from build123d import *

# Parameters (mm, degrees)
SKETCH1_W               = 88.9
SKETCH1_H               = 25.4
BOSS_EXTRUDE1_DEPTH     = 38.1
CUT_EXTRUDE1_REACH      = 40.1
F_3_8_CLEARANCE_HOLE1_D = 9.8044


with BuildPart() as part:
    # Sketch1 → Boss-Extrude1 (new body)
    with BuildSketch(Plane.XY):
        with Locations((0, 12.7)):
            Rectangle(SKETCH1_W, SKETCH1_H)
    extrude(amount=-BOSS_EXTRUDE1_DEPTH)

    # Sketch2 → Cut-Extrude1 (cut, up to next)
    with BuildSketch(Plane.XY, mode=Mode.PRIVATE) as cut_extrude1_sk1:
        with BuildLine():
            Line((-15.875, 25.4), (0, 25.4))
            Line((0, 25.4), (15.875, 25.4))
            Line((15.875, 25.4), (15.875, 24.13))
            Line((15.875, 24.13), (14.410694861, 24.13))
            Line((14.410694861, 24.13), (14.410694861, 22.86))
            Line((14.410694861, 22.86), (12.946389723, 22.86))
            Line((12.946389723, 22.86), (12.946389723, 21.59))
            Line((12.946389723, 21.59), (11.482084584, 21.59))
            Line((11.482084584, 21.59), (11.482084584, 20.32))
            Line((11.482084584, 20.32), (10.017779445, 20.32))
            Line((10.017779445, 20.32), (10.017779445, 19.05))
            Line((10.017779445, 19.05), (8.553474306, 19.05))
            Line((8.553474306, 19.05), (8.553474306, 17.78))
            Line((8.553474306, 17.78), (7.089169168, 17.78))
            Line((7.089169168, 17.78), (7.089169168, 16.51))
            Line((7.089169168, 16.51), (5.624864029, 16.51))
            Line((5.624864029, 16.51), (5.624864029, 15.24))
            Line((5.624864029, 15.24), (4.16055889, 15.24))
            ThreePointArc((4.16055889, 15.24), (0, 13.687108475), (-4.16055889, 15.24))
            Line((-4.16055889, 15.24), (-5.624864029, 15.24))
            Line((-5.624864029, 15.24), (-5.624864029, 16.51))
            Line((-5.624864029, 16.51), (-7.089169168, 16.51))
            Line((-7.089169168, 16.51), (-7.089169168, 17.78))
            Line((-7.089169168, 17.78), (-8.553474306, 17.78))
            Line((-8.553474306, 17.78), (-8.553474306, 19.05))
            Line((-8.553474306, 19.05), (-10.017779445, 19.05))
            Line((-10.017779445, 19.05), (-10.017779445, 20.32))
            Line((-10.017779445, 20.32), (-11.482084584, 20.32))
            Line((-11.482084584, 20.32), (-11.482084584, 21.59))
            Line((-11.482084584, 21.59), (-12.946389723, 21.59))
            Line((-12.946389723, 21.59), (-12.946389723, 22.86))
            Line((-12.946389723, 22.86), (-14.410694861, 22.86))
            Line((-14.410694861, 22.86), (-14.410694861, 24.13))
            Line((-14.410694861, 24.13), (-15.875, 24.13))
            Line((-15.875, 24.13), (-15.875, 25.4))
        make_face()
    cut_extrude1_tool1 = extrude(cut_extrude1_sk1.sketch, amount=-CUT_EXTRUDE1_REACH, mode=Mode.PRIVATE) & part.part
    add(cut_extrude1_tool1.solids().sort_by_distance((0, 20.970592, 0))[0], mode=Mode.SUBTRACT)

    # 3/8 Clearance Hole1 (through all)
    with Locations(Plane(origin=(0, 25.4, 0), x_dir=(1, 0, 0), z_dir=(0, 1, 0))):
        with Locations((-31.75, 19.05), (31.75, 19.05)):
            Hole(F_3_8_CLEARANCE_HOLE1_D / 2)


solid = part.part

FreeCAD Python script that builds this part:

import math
import FreeCAD as App
import Part
import Sketcher
Q = App.Units.Quantity


def add_polygon(sketch, points):
    """Adds a closed chain of lines whose ends are joined by coincident constraints."""
    first, n = sketch.GeometryCount, len(points)
    for a, b in zip(points, points[1:] + points[:1]):
        sketch.addGeometry(Part.LineSegment(App.Vector(*a, 0), App.Vector(*b, 0)), False)
    for i in range(n):
        sketch.addConstraint(Sketcher.Constraint("Coincident", first + i, 2, first + (i + 1) % n, 1))

doc = App.newDocument("Part")
body = doc.addObject("PartDesign::Body", "Body")

sketch1 = body.newObject("Sketcher::SketchObject", "Sketch")
sketch1.AttachmentSupport = (doc.getObject("XY_Plane"), [""])
sketch1.MapMode = "FlatFace"
add_polygon(sketch1, [(-44.45, 25.4), (-44.45, 0), (44.45, 0), (44.45, 25.4)])
sketch1.addConstraint([
    Sketcher.Constraint("Vertical", 0),
    Sketcher.Constraint("Horizontal", 1),
    Sketcher.Constraint("Vertical", 2),
    Sketcher.Constraint("Horizontal", 3),
    Sketcher.Constraint("Symmetric", 0, 2, 1, 2, -1, 1),
    Sketcher.Constraint("DistanceY", 0, 2, 0, 1, Q("1 in")),
    Sketcher.Constraint("DistanceX", 1, 1, 1, 2, Q("3.5 in")),
])
pad1 = body.newObject("PartDesign::Pad", "Pad")
pad1.Profile = sketch1
pad1.Length = Q("1.5 in")
pad1.Reversed = True

sketch2 = body.newObject("Sketcher::SketchObject", "Sketch001")
sketch2.AttachmentSupport = (doc.getObject("XY_Plane"), [""])
sketch2.MapMode = "FlatFace"
sketch2.addGeometry([
    Part.LineSegment(App.Vector(15.875, 25.4, 0), App.Vector(-15.875, 25.4, 0)),
    Part.LineSegment(App.Vector(-15.875, 25.4, 0), App.Vector(-15.875, 24.13, 0)),
    Part.LineSegment(App.Vector(-15.875, 24.13, 0), App.Vector(-14.410695, 24.13, 0)),
    Part.LineSegment(App.Vector(-14.410695, 24.13, 0), App.Vector(-14.410695, 22.86, 0)),
    Part.LineSegment(App.Vector(-14.410695, 22.86, 0), App.Vector(-12.94639, 22.86, 0)),
    Part.LineSegment(App.Vector(-12.94639, 22.86, 0), App.Vector(-12.94639, 21.59, 0)),
    Part.LineSegment(App.Vector(-12.94639, 21.59, 0), App.Vector(-11.482085, 21.59, 0)),
    Part.LineSegment(App.Vector(-11.482085, 21.59, 0), App.Vector(-11.482085, 20.32, 0)),
    Part.LineSegment(App.Vector(-11.482085, 20.32, 0), App.Vector(-10.017779, 20.32, 0)),
    Part.LineSegment(App.Vector(-10.017779, 20.32, 0), App.Vector(-10.017779, 19.05, 0)),
    Part.LineSegment(App.Vector(-10.017779, 19.05, 0), App.Vector(-8.553474, 19.05, 0)),
    Part.LineSegment(App.Vector(-8.553474, 19.05, 0), App.Vector(-8.553474, 17.78, 0)),
    Part.LineSegment(App.Vector(-8.553474, 17.78, 0), App.Vector(-7.089169, 17.78, 0)),
    Part.LineSegment(App.Vector(-7.089169, 17.78, 0), App.Vector(-7.089169, 16.51, 0)),
    Part.LineSegment(App.Vector(-7.089169, 16.51, 0), App.Vector(-5.624864, 16.51, 0)),
    Part.LineSegment(App.Vector(-5.624864, 16.51, 0), App.Vector(-5.624864, 15.24, 0)),
    Part.LineSegment(App.Vector(-5.624864, 15.24, 0), App.Vector(-4.160559, 15.24, 0)),
    Part.ArcOfCircle(Part.Circle(App.Vector(0, 20.037108, 0), App.Vector(0, 0, 1), 6.35), math.radians(-130.935281), math.radians(-49.064719)),
    Part.LineSegment(App.Vector(4.160559, 15.24, 0), App.Vector(5.624864, 15.24, 0)),
    Part.LineSegment(App.Vector(5.624864, 15.24, 0), App.Vector(5.624864, 16.51, 0)),
    Part.LineSegment(App.Vector(5.624864, 16.51, 0), App.Vector(7.089169, 16.51, 0)),
    Part.LineSegment(App.Vector(7.089169, 16.51, 0), App.Vector(7.089169, 17.78, 0)),
    Part.LineSegment(App.Vector(7.089169, 17.78, 0), App.Vector(8.553474, 17.78, 0)),
    Part.LineSegment(App.Vector(8.553474, 17.78, 0), App.Vector(8.553474, 19.05, 0)),
    Part.LineSegment(App.Vector(8.553474, 19.05, 0), App.Vector(10.017779, 19.05, 0)),
    Part.LineSegment(App.Vector(10.017779, 19.05, 0), App.Vector(10.017779, 20.32, 0)),
    Part.LineSegment(App.Vector(10.017779, 20.32, 0), App.Vector(11.482085, 20.32, 0)),
    Part.LineSegment(App.Vector(11.482085, 20.32, 0), App.Vector(11.482085, 21.59, 0)),
    Part.LineSegment(App.Vector(11.482085, 21.59, 0), App.Vector(12.94639, 21.59, 0)),
    Part.LineSegment(App.Vector(12.94639, 21.59, 0), App.Vector(12.94639, 22.86, 0)),
    Part.LineSegment(App.Vector(12.94639, 22.86, 0), App.Vector(14.410695, 22.86, 0)),
    Part.LineSegment(App.Vector(14.410695, 22.86, 0), App.Vector(14.410695, 24.13, 0)),
    Part.LineSegment(App.Vector(14.410695, 24.13, 0), App.Vector(15.875, 24.13, 0)),
    Part.LineSegment(App.Vector(15.875, 24.13, 0), App.Vector(15.875, 25.4, 0)),
], False)
sketch2.addConstraint([
    Sketcher.Constraint("Coincident", 0, 2, 1, 1),
    Sketcher.Constraint("Coincident", 1, 2, 2, 1),
    Sketcher.Constraint("Coincident", 2, 2, 3, 1),
    Sketcher.Constraint("Coincident", 3, 2, 4, 1),
    Sketcher.Constraint("Coincident", 4, 2, 5, 1),
    Sketcher.Constraint("Coincident", 5, 2, 6, 1),
    Sketcher.Constraint("Coincident", 6, 2, 7, 1),
    Sketcher.Constraint("Coincident", 7, 2, 8, 1),
    Sketcher.Constraint("Coincident", 8, 2, 9, 1),
    Sketcher.Constraint("Coincident", 9, 2, 10, 1),
    Sketcher.Constraint("Coincident", 10, 2, 11, 1),
    Sketcher.Constraint("Coincident", 11, 2, 12, 1),
    Sketcher.Constraint("Coincident", 12, 2, 13, 1),
    Sketcher.Constraint("Coincident", 13, 2, 14, 1),
    Sketcher.Constraint("Coincident", 14, 2, 15, 1),
    Sketcher.Constraint("Coincident", 15, 2, 16, 1),
    Sketcher.Constraint("Coincident", 16, 2, 17, 1),
    Sketcher.Constraint("Coincident", 17, 2, 18, 1),
    Sketcher.Constraint("Coincident", 18, 2, 19, 1),
    Sketcher.Constraint("Coincident", 19, 2, 20, 1),
    Sketcher.Constraint("Coincident", 20, 2, 21, 1),
    Sketcher.Constraint("Coincident", 21, 2, 22, 1),
    Sketcher.Constraint("Coincident", 22, 2, 23, 1),
    Sketcher.Constraint("Coincident", 23, 2, 24, 1),
    Sketcher.Constraint("Coincident", 24, 2, 25, 1),
    Sketcher.Constraint("Coincident", 25, 2, 26, 1),
    Sketcher.Constraint("Coincident", 26, 2, 27, 1),
    Sketcher.Constraint("Coincident", 27, 2, 28, 1),
    Sketcher.Constraint("Coincident", 28, 2, 29, 1),
    Sketcher.Constraint("Coincident", 29, 2, 30, 1),
    Sketcher.Constraint("Coincident", 30, 2, 31, 1),
    Sketcher.Constraint("Coincident", 31, 2, 32, 1),
    Sketcher.Constraint("Coincident", 32, 2, 33, 1),
    Sketcher.Constraint("Coincident", 33, 2, 0, 1),
    Sketcher.Constraint("Horizontal", 0),
    Sketcher.Constraint("Vertical", 1),
    Sketcher.Constraint("Horizontal", 2),
    Sketcher.Constraint("Vertical", 3),
    Sketcher.Constraint("Horizontal", 4),
    Sketcher.Constraint("Vertical", 5),
    Sketcher.Constraint("Horizontal", 6),
    Sketcher.Constraint("Vertical", 7),
    Sketcher.Constraint("Horizontal", 8),
    Sketcher.Constraint("Vertical", 9),
    Sketcher.Constraint("Horizontal", 10),
    Sketcher.Constraint("Vertical", 11),
    Sketcher.Constraint("Horizontal", 12),
    Sketcher.Constraint("Vertical", 13),
    Sketcher.Constraint("Horizontal", 14),
    Sketcher.Constraint("Vertical", 15),
    Sketcher.Constraint("Horizontal", 16),
    Sketcher.Constraint("Horizontal", 18),
    Sketcher.Constraint("Vertical", 19),
    Sketcher.Constraint("Horizontal", 20),
    Sketcher.Constraint("Vertical", 21),
    Sketcher.Constraint("Horizontal", 22),
    Sketcher.Constraint("Vertical", 23),
    Sketcher.Constraint("Horizontal", 24),
    Sketcher.Constraint("Vertical", 25),
    Sketcher.Constraint("Horizontal", 26),
    Sketcher.Constraint("Vertical", 27),
    Sketcher.Constraint("Horizontal", 28),
    Sketcher.Constraint("Vertical", 29),
    Sketcher.Constraint("Horizontal", 30),
    Sketcher.Constraint("Vertical", 31),
    Sketcher.Constraint("Horizontal", 32),
    Sketcher.Constraint("Vertical", 33),
    Sketcher.Constraint("Symmetric", 16, 2, 17, 2, -2),
    Sketcher.Constraint("Symmetric", 14, 2, 19, 2, -2),
    Sketcher.Constraint("Symmetric", 12, 2, 21, 2, -2),
    Sketcher.Constraint("Symmetric", 10, 2, 23, 2, -2),
    Sketcher.Constraint("Symmetric", 8, 2, 25, 2, -2),
    Sketcher.Constraint("Symmetric", 6, 2, 27, 2, -2),
    Sketcher.Constraint("Symmetric", 4, 2, 29, 2, -2),
    Sketcher.Constraint("Symmetric", 2, 2, 31, 2, -2),
    Sketcher.Constraint("Equal", 2, 4),
    Sketcher.Constraint("Equal", 4, 6),
    Sketcher.Constraint("Equal", 6, 8),
    Sketcher.Constraint("Equal", 8, 10),
    Sketcher.Constraint("Equal", 10, 12),
    Sketcher.Constraint("Equal", 12, 14),
    Sketcher.Constraint("Equal", 14, 16),
    Sketcher.Constraint("Equal", 30, 32),
    Sketcher.Constraint("Equal", 1, 3),
    Sketcher.Constraint("Equal", 3, 5),
    Sketcher.Constraint("Equal", 5, 7),
    Sketcher.Constraint("Equal", 7, 9),
    Sketcher.Constraint("Equal", 9, 11),
    Sketcher.Constraint("Equal", 11, 13),
    Sketcher.Constraint("Equal", 13, 15),
    Sketcher.Constraint("Radius", 17, Q("0.25 in")),
    Sketcher.Constraint("DistanceY", -1, 1, 0, 2, Q("1 in")),
    Sketcher.Constraint("DistanceX", 0, 2, 0, 1, Q("1.25 in")),
    Sketcher.Constraint("DistanceY", 1, 2, 1, 1, Q("0.05 in")),
    Sketcher.Constraint("DistanceX", 2, 1, 2, 2, 1.464305),
])
pocket1 = body.newObject("PartDesign::Pocket", "Pocket")
pocket1.Profile = sketch2
pocket1.Type = "UpToFirst"

sketch3 = body.newObject("Sketcher::SketchObject", "Sketch002")
sketch3.AttachmentSupport = (doc.getObject("XZ_Plane"), [""])
sketch3.MapMode = "FlatFace"
sketch3.AttachmentOffset = App.Placement(App.Vector(0, 0, -1 * 25.4), App.Rotation())
sketch3.addGeometry([
    Part.Circle(App.Vector(-31.75, -19.05, 0), App.Vector(0, 0, 1), 4.9022),
    Part.Circle(App.Vector(31.75, -19.05, 0), App.Vector(0, 0, 1), 4.9022),
], False)
sketch3.addConstraint([
    Sketcher.Constraint("Equal", 0, 1),
    Sketcher.Constraint("Symmetric", 0, 3, 1, 3, -2),
    Sketcher.Constraint("Diameter", 0, Q("0.386 in")),
    Sketcher.Constraint("DistanceX", 0, 3, 1, 3, Q("2.5 in")),
    Sketcher.Constraint("DistanceY", 0, 3, -1, 1, Q("0.75 in")),
])
doc.recompute()
hole = body.newObject("PartDesign::Hole", "Hole")
hole.Profile = sketch3
hole.ThreadType = "None"
hole.Diameter = Q("0.386 in")
hole.DepthType = "ThroughAll"
hole.Reversed = True

doc.recompute()
